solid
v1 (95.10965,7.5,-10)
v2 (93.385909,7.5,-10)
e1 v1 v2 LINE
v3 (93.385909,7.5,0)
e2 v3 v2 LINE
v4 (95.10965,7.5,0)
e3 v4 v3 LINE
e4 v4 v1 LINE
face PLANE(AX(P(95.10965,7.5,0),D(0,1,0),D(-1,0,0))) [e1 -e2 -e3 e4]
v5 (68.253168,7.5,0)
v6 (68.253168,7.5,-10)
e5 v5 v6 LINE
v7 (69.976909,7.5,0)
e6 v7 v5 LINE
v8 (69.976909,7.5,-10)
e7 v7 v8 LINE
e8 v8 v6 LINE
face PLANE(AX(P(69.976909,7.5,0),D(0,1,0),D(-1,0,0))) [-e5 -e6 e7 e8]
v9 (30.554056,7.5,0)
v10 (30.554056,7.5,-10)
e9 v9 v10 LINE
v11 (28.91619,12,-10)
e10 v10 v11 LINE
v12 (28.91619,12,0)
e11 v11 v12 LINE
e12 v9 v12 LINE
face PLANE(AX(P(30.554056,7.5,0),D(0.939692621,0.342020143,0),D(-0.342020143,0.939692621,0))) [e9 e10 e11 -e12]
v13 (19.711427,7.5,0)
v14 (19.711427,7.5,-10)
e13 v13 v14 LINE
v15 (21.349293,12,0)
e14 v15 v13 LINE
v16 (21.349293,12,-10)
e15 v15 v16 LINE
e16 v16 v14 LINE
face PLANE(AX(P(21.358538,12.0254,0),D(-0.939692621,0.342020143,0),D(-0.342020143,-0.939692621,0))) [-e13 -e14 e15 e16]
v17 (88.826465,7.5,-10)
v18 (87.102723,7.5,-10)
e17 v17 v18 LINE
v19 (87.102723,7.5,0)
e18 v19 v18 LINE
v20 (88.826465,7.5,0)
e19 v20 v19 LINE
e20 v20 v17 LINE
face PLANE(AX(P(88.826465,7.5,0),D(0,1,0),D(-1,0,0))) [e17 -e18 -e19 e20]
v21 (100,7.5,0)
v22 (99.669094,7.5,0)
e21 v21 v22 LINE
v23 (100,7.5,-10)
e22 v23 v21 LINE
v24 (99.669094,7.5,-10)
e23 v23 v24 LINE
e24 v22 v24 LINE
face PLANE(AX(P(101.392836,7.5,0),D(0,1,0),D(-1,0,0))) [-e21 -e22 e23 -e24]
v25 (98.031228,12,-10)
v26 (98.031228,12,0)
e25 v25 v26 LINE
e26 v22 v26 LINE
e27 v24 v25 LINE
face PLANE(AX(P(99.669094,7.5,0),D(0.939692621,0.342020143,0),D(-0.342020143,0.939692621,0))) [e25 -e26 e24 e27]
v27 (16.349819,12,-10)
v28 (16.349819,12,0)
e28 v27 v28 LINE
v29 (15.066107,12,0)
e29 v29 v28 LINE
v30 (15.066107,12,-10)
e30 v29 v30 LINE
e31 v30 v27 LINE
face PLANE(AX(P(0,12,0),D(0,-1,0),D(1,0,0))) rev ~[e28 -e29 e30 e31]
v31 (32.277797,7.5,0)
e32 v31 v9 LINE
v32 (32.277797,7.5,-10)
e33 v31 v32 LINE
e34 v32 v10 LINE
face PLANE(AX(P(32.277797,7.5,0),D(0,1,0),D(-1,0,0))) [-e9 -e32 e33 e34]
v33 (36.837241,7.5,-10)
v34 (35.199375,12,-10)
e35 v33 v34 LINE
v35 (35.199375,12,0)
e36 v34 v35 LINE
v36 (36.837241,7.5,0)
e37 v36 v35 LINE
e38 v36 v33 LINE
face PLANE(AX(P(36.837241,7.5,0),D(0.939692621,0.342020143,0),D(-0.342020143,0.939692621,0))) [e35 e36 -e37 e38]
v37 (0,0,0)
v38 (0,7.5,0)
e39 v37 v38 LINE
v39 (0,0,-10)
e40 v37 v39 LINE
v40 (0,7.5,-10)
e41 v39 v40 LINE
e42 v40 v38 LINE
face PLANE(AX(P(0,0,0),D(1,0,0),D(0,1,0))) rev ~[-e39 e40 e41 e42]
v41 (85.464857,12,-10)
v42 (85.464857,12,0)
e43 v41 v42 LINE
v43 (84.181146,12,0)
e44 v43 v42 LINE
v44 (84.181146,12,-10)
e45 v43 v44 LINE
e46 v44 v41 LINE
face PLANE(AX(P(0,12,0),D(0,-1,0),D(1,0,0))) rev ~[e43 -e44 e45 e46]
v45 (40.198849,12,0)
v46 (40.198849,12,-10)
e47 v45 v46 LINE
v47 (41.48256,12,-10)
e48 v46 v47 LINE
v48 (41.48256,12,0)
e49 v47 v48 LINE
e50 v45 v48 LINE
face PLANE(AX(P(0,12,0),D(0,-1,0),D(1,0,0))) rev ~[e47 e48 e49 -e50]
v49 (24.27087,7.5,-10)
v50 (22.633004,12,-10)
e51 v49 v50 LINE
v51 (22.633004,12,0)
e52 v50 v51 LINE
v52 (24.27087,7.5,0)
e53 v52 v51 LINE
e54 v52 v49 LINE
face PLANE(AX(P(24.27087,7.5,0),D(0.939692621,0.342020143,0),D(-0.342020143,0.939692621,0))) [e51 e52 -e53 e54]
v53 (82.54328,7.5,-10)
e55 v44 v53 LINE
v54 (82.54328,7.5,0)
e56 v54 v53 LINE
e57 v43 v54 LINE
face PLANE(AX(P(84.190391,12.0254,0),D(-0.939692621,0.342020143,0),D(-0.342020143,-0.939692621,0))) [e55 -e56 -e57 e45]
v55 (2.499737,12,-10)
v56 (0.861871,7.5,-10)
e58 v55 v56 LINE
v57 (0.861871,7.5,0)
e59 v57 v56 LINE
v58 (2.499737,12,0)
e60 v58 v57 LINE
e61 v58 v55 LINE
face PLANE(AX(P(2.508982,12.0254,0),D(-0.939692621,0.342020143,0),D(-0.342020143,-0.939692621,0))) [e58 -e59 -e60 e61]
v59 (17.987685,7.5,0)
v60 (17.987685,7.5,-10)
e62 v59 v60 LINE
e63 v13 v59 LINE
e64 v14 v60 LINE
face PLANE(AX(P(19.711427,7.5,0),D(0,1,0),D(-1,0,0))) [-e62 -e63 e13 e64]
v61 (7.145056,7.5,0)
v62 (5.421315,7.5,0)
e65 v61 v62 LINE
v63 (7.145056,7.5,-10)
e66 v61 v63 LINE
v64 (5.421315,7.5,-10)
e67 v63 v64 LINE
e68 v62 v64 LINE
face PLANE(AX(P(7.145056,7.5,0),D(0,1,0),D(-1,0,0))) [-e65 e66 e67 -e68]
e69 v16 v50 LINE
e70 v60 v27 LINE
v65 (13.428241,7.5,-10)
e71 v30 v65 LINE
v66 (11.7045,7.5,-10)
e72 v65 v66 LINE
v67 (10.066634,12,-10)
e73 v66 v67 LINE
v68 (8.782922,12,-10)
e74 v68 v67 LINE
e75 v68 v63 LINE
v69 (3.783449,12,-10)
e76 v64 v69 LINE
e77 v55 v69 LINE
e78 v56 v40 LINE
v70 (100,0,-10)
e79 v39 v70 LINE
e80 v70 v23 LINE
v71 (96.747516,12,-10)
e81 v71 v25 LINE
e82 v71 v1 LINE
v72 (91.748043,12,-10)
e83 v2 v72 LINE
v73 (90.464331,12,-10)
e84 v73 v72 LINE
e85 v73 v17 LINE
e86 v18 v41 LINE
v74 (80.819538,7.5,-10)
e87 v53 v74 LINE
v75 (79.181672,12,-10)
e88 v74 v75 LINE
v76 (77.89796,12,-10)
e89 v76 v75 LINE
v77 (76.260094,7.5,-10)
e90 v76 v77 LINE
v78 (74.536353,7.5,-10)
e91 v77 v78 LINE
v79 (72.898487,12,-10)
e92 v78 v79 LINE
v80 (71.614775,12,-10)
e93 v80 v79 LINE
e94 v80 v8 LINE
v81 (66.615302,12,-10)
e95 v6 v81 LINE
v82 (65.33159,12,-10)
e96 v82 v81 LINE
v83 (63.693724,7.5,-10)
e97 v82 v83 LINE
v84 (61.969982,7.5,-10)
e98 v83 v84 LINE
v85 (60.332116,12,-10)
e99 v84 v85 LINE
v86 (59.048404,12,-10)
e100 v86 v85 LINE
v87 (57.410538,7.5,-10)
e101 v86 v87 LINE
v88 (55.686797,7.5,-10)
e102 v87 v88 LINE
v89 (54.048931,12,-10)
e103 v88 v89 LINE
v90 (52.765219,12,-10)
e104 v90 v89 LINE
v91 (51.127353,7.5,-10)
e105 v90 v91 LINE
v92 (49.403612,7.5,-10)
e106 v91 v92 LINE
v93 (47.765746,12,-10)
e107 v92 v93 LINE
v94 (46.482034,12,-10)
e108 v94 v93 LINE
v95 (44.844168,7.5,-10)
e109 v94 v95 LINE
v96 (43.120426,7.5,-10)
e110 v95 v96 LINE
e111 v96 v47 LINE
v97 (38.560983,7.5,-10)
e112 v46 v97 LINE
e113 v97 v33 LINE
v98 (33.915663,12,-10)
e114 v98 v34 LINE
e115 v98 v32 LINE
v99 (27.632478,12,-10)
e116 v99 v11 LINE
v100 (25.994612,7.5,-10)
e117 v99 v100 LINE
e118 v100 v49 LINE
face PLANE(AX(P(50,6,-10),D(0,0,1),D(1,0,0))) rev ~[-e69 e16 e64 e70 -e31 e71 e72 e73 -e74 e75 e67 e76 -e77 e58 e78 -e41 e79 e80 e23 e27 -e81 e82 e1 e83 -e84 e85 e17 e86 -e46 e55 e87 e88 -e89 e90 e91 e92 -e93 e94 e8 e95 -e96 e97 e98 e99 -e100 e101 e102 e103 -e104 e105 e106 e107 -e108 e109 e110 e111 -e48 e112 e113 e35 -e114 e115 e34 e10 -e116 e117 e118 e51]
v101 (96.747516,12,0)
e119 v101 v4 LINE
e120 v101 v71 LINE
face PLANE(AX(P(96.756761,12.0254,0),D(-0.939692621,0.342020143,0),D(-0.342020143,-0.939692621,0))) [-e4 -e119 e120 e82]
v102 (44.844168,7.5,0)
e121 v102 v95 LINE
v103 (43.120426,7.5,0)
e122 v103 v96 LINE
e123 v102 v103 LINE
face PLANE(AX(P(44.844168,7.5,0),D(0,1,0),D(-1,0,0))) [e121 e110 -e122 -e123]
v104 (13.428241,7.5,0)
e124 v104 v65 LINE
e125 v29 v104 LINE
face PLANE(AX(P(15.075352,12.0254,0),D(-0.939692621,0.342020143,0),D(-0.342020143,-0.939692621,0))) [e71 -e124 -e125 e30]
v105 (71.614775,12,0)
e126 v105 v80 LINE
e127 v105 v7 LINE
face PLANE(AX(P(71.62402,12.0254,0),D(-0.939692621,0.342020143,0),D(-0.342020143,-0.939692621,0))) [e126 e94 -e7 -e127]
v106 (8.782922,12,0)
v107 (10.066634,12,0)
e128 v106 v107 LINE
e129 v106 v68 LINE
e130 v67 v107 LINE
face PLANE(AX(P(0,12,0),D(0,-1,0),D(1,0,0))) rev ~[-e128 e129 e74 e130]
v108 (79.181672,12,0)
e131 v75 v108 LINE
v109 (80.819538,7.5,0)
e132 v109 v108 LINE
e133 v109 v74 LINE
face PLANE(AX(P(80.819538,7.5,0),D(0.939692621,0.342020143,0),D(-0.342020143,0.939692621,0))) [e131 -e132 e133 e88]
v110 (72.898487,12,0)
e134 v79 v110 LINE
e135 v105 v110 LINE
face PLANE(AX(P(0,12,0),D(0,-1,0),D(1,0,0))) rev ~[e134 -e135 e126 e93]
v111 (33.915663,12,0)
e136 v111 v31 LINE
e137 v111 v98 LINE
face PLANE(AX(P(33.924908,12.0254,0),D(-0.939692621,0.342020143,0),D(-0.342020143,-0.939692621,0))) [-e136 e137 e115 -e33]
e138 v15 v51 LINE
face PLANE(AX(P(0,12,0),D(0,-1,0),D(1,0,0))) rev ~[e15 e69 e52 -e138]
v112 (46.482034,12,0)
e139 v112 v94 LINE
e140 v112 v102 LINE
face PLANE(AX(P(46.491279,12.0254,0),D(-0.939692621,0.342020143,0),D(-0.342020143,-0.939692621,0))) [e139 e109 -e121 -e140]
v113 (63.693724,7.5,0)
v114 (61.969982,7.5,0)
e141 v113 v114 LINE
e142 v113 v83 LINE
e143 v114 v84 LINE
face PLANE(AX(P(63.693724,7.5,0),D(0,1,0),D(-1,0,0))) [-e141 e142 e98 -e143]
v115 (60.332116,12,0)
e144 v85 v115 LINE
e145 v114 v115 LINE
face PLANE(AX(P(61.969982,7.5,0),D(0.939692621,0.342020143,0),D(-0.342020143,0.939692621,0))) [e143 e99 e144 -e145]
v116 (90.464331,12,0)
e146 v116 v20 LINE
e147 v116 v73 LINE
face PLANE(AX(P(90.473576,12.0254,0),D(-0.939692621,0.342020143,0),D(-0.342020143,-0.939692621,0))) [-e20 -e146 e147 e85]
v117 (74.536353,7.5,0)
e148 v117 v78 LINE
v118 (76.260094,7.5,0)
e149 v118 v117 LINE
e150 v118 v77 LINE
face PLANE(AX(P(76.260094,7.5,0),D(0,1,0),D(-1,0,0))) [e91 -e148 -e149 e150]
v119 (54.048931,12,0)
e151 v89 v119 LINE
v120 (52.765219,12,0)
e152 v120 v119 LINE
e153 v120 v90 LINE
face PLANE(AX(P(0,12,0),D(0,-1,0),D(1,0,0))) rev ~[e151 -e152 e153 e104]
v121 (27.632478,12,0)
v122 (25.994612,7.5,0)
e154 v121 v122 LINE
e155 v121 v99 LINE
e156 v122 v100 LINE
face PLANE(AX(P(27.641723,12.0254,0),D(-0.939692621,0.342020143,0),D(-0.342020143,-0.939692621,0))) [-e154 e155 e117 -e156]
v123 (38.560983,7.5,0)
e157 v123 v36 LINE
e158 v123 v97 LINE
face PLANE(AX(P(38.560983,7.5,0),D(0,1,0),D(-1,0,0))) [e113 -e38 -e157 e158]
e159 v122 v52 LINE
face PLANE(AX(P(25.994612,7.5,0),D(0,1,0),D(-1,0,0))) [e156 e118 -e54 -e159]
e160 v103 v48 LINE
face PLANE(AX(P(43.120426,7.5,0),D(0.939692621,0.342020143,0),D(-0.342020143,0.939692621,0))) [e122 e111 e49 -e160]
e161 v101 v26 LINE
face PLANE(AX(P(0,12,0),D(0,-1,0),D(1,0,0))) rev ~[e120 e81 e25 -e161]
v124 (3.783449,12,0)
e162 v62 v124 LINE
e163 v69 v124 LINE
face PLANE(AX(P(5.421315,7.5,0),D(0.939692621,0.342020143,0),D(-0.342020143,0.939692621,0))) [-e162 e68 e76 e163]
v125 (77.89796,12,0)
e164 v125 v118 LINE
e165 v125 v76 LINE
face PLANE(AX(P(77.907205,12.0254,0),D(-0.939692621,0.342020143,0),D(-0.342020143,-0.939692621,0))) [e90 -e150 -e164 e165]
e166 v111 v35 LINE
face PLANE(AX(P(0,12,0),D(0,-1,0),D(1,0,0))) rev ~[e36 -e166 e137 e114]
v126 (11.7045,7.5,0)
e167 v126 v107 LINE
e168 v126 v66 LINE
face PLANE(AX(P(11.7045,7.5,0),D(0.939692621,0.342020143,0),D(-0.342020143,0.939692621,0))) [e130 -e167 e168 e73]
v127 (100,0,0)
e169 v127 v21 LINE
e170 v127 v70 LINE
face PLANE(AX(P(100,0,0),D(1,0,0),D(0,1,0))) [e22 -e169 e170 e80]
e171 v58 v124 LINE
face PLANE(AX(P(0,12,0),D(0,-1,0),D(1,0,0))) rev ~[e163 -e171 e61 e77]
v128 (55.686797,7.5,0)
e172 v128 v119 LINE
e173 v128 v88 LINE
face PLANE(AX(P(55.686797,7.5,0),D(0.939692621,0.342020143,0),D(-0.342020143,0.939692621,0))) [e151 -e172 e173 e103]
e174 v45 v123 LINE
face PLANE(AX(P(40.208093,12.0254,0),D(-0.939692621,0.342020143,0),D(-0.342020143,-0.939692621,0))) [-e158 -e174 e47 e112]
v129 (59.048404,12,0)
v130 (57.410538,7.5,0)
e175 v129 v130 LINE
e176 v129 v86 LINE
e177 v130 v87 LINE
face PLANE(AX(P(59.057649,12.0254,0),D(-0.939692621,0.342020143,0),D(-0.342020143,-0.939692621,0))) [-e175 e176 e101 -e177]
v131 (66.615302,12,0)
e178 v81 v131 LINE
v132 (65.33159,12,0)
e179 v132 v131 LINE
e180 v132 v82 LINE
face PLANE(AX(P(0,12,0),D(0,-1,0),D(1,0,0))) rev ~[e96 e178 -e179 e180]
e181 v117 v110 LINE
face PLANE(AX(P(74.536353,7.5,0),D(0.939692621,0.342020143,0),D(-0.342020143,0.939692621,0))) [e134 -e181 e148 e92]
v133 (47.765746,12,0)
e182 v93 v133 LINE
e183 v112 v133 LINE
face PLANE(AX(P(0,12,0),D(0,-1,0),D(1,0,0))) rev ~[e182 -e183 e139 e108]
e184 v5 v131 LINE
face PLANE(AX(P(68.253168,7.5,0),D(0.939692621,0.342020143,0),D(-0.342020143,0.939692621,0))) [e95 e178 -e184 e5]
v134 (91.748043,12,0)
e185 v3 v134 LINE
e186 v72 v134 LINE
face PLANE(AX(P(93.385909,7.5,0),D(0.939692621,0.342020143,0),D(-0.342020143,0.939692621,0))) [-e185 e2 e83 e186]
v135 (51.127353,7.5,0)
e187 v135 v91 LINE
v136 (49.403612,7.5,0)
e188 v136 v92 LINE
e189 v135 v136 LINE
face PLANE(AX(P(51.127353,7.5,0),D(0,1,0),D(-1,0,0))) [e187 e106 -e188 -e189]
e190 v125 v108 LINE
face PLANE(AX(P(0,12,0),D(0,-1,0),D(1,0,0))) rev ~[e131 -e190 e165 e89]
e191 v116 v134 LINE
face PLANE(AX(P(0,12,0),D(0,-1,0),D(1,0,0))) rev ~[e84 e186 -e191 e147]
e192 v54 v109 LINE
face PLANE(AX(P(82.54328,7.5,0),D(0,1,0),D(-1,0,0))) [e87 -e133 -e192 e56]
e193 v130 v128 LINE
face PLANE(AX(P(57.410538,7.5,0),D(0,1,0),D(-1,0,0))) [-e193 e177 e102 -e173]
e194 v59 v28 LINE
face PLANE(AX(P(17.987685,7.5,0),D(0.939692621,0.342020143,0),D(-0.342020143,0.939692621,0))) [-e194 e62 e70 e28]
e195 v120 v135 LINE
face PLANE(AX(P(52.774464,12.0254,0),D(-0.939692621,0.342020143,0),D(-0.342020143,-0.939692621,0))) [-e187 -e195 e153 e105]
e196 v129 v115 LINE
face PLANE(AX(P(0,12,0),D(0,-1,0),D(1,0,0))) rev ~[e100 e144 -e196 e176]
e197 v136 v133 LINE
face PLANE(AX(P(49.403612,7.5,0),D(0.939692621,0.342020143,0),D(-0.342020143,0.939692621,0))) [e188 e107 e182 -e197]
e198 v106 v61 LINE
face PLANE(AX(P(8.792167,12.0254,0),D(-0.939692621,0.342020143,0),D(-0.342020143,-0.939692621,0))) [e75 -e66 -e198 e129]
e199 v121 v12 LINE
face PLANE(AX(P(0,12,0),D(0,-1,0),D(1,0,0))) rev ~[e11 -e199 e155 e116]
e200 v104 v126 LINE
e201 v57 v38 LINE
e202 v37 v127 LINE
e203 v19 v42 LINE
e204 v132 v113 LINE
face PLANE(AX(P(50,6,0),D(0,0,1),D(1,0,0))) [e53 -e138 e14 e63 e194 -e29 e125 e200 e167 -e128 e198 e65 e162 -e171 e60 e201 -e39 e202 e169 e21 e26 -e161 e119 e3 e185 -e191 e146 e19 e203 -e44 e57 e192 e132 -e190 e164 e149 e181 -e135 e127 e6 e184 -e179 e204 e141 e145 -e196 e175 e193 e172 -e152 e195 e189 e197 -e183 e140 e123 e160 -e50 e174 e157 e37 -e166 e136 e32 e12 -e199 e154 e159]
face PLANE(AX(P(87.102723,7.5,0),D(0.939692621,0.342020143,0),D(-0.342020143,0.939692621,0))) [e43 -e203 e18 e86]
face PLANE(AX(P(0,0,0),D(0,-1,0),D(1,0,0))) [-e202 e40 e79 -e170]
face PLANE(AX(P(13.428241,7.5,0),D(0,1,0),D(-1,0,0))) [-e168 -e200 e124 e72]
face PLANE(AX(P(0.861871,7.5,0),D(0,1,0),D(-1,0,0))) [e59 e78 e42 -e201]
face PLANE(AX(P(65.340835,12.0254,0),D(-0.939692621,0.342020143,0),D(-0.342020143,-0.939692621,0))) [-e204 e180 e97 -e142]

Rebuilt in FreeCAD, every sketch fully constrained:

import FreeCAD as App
import Part
import Sketcher

V = App.Vector
Q = App.Units.Quantity

doc = App.newDocument("Part")
body = doc.addObject("PartDesign::Body", "Body")

# Sketch on XY plane
sketch1 = body.newObject("Sketcher::SketchObject", "Sketch")
sketch1.AttachmentSupport = (doc.getObject("XY_Plane"), [""])
sketch1.MapMode = "FlatFace"
sketch1.addGeometry([
    Part.LineSegment(V(0, 12, 0), V(0, 0, 0)),
    Part.LineSegment(V(0, 0, 0), V(100, 0, 0)),
    Part.LineSegment(V(100, 0, 0), V(100, 12, 0)),
    Part.LineSegment(V(100, 12, 0), V(0, 12, 0)),
], False)
sketch1.addConstraint([
    Sketcher.Constraint("Coincident", 0, 2, 1, 1),
    Sketcher.Constraint("Coincident", 1, 2, 2, 1),
    Sketcher.Constraint("Coincident", 2, 2, 3, 1),
    Sketcher.Constraint("Coincident", 3, 2, 0, 1),
    Sketcher.Constraint("Vertical", 0),
    Sketcher.Constraint("Horizontal", 1),
    Sketcher.Constraint("Vertical", 2),
    Sketcher.Constraint("Horizontal", 3),
    Sketcher.Constraint("Coincident", 0, 2, -1, 1),
    Sketcher.Constraint("DistanceX", 1, 1, 1, 2, Q("100 mm")),
    Sketcher.Constraint("DistanceY", 0, 2, 0, 1, Q("12 mm")),
])
pad1 = body.newObject("PartDesign::Pad", "Pad")
pad1.Profile = sketch1
pad1.Length = 10
pad1.Reversed = True

# Sketch on XY plane
sketch2 = body.newObject("Sketcher::SketchObject", "Sketch001")
sketch2.AttachmentSupport = (doc.getObject("XY_Plane"), [""])
sketch2.MapMode = "FlatFace"
sketch2.addGeometry([
    Part.LineSegment(V(-0.9, 7.5, 0), V(0.9, 7.5, 0)),
    Part.LineSegment(V(0.9, 7.5, 0), V(2.5, 12, 0)),
    Part.LineSegment(V(2.5, 12, 0), V(-2.5, 12, 0)),
    Part.LineSegment(V(-2.5, 12, 0), V(-0.9, 7.5, 0)),
], False)
sketch2.addConstraint([
    Sketcher.Constraint("Coincident", 0, 2, 1, 1),
    Sketcher.Constraint("Coincident", 1, 2, 2, 1),
    Sketcher.Constraint("Coincident", 2, 2, 3, 1),
    Sketcher.Constraint("Coincident", 3, 2, 0, 1),
    Sketcher.Constraint("Horizontal", 0),
    Sketcher.Constraint("Horizontal", 2),
    Sketcher.Constraint("Equal", 1, 3),
    Sketcher.Constraint("Angle", 1, Q("70 deg")),
    Sketcher.Constraint("DistanceY", -1, 1, 0, 2, Q("7.5 mm")),
    Sketcher.Constraint("DistanceX", 0, 1, 0, 2, Q("1.723741 mm")),
    Sketcher.Constraint("DistanceY", -1, 1, 1, 2, Q("12.0254 mm")),
    Sketcher.Constraint("DistanceX", -1, 1, 0, 2, Q("0.861871 mm")),
])
pocket1 = body.newObject("PartDesign::Pocket", "Pocket")
pocket1.Profile = sketch2
pocket1.Type = "ThroughAll"
doc.recompute()

linearpattern = body.newObject("PartDesign::LinearPattern", "LinearPattern")
linearpattern.Originals = [pocket1]
linearpattern.Direction = (doc.getObject("X_Axis"), [""])
linearpattern.Mode = "offset"
linearpattern.Offset = 6.283185
linearpattern.Occurrences = 17
body.Tip = linearpattern

doc.recompute()
